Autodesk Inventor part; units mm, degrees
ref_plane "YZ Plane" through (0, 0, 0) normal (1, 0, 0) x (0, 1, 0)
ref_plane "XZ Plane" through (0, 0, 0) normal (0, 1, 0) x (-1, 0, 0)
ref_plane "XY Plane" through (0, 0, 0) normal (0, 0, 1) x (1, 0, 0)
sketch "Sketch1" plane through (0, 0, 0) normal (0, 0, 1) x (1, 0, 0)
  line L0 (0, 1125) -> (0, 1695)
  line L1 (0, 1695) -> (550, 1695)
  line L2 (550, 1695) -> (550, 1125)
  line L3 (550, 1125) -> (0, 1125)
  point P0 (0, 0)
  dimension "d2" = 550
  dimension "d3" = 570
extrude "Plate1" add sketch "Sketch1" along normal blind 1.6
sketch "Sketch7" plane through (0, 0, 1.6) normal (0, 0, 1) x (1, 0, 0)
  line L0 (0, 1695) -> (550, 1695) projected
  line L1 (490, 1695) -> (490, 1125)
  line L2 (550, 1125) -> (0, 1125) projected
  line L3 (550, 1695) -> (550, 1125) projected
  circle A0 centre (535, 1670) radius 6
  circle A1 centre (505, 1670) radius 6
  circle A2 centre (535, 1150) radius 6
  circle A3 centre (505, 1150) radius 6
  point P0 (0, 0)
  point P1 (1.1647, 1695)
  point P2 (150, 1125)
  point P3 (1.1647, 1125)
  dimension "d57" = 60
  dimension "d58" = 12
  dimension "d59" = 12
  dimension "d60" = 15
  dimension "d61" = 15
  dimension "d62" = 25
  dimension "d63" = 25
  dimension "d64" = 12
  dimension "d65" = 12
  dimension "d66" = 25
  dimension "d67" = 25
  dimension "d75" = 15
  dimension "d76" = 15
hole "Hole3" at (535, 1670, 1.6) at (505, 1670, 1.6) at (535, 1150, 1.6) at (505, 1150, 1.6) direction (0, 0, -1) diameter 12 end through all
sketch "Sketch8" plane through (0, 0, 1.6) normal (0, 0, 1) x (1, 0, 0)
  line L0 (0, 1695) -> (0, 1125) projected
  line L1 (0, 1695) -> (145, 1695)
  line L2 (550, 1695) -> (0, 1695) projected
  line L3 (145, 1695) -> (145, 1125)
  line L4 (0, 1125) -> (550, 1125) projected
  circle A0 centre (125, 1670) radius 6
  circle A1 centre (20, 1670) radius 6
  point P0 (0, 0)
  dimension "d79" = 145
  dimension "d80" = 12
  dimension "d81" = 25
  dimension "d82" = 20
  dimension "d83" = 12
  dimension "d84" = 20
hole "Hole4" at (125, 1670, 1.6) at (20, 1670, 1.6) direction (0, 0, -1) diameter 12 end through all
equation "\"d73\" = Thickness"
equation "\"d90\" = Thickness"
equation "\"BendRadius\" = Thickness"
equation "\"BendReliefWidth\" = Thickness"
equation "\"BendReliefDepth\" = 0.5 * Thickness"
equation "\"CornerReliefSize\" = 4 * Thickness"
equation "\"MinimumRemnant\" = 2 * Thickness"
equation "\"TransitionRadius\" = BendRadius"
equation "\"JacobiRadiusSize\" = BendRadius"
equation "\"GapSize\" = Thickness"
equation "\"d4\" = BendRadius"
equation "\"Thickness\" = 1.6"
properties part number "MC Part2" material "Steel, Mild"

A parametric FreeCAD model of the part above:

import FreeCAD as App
import Part
import Sketcher

doc = App.newDocument("Part")
body = doc.addObject("PartDesign::Body", "Body")

# Sketch on XY plane
sketch1 = body.newObject("Sketcher::SketchObject", "Sketch")
sketch1.AttachmentSupport = (doc.getObject("XY_Plane"), [""])
sketch1.MapMode = "FlatFace"
sketch1.addGeometry(Part.LineSegment(App.Vector(0, 1695, 0), App.Vector(0, 1125, 0)), False)
sketch1.addGeometry(Part.LineSegment(App.Vector(0, 1125, 0), App.Vector(550, 1125, 0)), False)
sketch1.addGeometry(Part.LineSegment(App.Vector(550, 1125, 0), App.Vector(550, 1695, 0)), False)
sketch1.addGeometry(Part.LineSegment(App.Vector(550, 1695, 0), App.Vector(0, 1695, 0)), False)
sketch1.addConstraint(Sketcher.Constraint("Coincident", 0, 2, 1, 1))
sketch1.addConstraint(Sketcher.Constraint("Coincident", 1, 2, 2, 1))
sketch1.addConstraint(Sketcher.Constraint("Coincident", 2, 2, 3, 1))
sketch1.addConstraint(Sketcher.Constraint("Coincident", 3, 2, 0, 1))
sketch1.addConstraint(Sketcher.Constraint("Vertical", 0))
sketch1.addConstraint(Sketcher.Constraint("Horizontal", 1))
sketch1.addConstraint(Sketcher.Constraint("Vertical", 2))
sketch1.addConstraint(Sketcher.Constraint("Horizontal", 3))
sketch1.addConstraint(Sketcher.Constraint("PointOnObject", 0, 2, -2))
sketch1.addConstraint(Sketcher.Constraint("DistanceX", 1, 1, 1, 2, 550.0))
sketch1.addConstraint(Sketcher.Constraint("DistanceY", 0, 2, 0, 1, 570.0))
sketch1.addConstraint(Sketcher.Constraint("DistanceY", -1, 1, 0, 2, 1125.0))
pad1 = body.newObject("PartDesign::Pad", "Pad")
pad1.Profile = sketch1
pad1.Length = 1.6

# Sketch on XY plane
sketch2 = body.newObject("Sketcher::SketchObject", "Sketch001")
sketch2.AttachmentSupport = (doc.getObject("XY_Plane"), [""])
sketch2.MapMode = "FlatFace"
sketch2.AttachmentOffset = App.Placement(App.Vector(0, 0, 1.6), App.Rotation())
sketch2.addGeometry(Part.Circle(App.Vector(535, 1670, 0), App.Vector(0, 0, 1), 6), False)
sketch2.addGeometry(Part.Circle(App.Vector(505, 1670, 0), App.Vector(0, 0, 1), 6), False)
sketch2.addGeometry(Part.Circle(App.Vector(535, 1150, 0), App.Vector(0, 0, 1), 6), False)
sketch2.addGeometry(Part.Circle(App.Vector(505, 1150, 0), App.Vector(0, 0, 1), 6), False)
sketch2.addConstraint(Sketcher.Constraint("Equal", 0, 1))
sketch2.addConstraint(Sketcher.Constraint("Equal", 1, 2))
sketch2.addConstraint(Sketcher.Constraint("Equal", 2, 3))
sketch2.addConstraint(Sketcher.Constraint("Horizontal", 0, 3, 1, 3))
sketch2.addConstraint(Sketcher.Constraint("Horizontal", 2, 3, 3, 3))
sketch2.addConstraint(Sketcher.Constraint("Vertical", 0, 3, 2, 3))
sketch2.addConstraint(Sketcher.Constraint("Vertical", 1, 3, 3, 3))
sketch2.addConstraint(Sketcher.Constraint("Diameter", 0, 12.0))
sketch2.addConstraint(Sketcher.Constraint("DistanceX", -1, 1, 0, 3, 535.0))
sketch2.addConstraint(Sketcher.Constraint("DistanceY", -1, 1, 0, 3, 1670.0))
sketch2.addConstraint(Sketcher.Constraint("DistanceX", -1, 1, 1, 3, 505.0))
sketch2.addConstraint(Sketcher.Constraint("DistanceY", -1, 1, 2, 3, 1150.0))
doc.recompute()
hole = body.newObject("PartDesign::Hole", "Hole")
hole.Profile = sketch2
hole.ThreadType = "None"
hole.Diameter = 12
hole.DepthType = "ThroughAll"

# Sketch on XY plane
sketch3 = body.newObject("Sketcher::SketchObject", "Sketch002")
sketch3.AttachmentSupport = (doc.getObject("XY_Plane"), [""])
sketch3.MapMode = "FlatFace"
sketch3.AttachmentOffset = App.Placement(App.Vector(0, 0, 1.6), App.Rotation())
sketch3.addGeometry(Part.Circle(App.Vector(125, 1670, 0), App.Vector(0, 0, 1), 6), False)
sketch3.addGeometry(Part.Circle(App.Vector(20, 1670, 0), App.Vector(0, 0, 1), 6), False)
sketch3.addConstraint(Sketcher.Constraint("Equal", 0, 1))
sketch3.addConstraint(Sketcher.Constraint("Horizontal", 0, 3, 1, 3))
sketch3.addConstraint(Sketcher.Constraint("Diameter", 0, 12.0))
sketch3.addConstraint(Sketcher.Constraint("DistanceX", -1, 1, 0, 3, 125.0))
sketch3.addConstraint(Sketcher.Constraint("DistanceY", -1, 1, 0, 3, 1670.0))
sketch3.addConstraint(Sketcher.Constraint("DistanceX", -1, 1, 1, 3, 20.0))
doc.recompute()
hole2 = body.newObject("PartDesign::Hole", "Hole001")
hole2.Profile = sketch3
hole2.ThreadType = "None"
hole2.Diameter = 12
hole2.DepthType = "ThroughAll"

doc.recompute()
